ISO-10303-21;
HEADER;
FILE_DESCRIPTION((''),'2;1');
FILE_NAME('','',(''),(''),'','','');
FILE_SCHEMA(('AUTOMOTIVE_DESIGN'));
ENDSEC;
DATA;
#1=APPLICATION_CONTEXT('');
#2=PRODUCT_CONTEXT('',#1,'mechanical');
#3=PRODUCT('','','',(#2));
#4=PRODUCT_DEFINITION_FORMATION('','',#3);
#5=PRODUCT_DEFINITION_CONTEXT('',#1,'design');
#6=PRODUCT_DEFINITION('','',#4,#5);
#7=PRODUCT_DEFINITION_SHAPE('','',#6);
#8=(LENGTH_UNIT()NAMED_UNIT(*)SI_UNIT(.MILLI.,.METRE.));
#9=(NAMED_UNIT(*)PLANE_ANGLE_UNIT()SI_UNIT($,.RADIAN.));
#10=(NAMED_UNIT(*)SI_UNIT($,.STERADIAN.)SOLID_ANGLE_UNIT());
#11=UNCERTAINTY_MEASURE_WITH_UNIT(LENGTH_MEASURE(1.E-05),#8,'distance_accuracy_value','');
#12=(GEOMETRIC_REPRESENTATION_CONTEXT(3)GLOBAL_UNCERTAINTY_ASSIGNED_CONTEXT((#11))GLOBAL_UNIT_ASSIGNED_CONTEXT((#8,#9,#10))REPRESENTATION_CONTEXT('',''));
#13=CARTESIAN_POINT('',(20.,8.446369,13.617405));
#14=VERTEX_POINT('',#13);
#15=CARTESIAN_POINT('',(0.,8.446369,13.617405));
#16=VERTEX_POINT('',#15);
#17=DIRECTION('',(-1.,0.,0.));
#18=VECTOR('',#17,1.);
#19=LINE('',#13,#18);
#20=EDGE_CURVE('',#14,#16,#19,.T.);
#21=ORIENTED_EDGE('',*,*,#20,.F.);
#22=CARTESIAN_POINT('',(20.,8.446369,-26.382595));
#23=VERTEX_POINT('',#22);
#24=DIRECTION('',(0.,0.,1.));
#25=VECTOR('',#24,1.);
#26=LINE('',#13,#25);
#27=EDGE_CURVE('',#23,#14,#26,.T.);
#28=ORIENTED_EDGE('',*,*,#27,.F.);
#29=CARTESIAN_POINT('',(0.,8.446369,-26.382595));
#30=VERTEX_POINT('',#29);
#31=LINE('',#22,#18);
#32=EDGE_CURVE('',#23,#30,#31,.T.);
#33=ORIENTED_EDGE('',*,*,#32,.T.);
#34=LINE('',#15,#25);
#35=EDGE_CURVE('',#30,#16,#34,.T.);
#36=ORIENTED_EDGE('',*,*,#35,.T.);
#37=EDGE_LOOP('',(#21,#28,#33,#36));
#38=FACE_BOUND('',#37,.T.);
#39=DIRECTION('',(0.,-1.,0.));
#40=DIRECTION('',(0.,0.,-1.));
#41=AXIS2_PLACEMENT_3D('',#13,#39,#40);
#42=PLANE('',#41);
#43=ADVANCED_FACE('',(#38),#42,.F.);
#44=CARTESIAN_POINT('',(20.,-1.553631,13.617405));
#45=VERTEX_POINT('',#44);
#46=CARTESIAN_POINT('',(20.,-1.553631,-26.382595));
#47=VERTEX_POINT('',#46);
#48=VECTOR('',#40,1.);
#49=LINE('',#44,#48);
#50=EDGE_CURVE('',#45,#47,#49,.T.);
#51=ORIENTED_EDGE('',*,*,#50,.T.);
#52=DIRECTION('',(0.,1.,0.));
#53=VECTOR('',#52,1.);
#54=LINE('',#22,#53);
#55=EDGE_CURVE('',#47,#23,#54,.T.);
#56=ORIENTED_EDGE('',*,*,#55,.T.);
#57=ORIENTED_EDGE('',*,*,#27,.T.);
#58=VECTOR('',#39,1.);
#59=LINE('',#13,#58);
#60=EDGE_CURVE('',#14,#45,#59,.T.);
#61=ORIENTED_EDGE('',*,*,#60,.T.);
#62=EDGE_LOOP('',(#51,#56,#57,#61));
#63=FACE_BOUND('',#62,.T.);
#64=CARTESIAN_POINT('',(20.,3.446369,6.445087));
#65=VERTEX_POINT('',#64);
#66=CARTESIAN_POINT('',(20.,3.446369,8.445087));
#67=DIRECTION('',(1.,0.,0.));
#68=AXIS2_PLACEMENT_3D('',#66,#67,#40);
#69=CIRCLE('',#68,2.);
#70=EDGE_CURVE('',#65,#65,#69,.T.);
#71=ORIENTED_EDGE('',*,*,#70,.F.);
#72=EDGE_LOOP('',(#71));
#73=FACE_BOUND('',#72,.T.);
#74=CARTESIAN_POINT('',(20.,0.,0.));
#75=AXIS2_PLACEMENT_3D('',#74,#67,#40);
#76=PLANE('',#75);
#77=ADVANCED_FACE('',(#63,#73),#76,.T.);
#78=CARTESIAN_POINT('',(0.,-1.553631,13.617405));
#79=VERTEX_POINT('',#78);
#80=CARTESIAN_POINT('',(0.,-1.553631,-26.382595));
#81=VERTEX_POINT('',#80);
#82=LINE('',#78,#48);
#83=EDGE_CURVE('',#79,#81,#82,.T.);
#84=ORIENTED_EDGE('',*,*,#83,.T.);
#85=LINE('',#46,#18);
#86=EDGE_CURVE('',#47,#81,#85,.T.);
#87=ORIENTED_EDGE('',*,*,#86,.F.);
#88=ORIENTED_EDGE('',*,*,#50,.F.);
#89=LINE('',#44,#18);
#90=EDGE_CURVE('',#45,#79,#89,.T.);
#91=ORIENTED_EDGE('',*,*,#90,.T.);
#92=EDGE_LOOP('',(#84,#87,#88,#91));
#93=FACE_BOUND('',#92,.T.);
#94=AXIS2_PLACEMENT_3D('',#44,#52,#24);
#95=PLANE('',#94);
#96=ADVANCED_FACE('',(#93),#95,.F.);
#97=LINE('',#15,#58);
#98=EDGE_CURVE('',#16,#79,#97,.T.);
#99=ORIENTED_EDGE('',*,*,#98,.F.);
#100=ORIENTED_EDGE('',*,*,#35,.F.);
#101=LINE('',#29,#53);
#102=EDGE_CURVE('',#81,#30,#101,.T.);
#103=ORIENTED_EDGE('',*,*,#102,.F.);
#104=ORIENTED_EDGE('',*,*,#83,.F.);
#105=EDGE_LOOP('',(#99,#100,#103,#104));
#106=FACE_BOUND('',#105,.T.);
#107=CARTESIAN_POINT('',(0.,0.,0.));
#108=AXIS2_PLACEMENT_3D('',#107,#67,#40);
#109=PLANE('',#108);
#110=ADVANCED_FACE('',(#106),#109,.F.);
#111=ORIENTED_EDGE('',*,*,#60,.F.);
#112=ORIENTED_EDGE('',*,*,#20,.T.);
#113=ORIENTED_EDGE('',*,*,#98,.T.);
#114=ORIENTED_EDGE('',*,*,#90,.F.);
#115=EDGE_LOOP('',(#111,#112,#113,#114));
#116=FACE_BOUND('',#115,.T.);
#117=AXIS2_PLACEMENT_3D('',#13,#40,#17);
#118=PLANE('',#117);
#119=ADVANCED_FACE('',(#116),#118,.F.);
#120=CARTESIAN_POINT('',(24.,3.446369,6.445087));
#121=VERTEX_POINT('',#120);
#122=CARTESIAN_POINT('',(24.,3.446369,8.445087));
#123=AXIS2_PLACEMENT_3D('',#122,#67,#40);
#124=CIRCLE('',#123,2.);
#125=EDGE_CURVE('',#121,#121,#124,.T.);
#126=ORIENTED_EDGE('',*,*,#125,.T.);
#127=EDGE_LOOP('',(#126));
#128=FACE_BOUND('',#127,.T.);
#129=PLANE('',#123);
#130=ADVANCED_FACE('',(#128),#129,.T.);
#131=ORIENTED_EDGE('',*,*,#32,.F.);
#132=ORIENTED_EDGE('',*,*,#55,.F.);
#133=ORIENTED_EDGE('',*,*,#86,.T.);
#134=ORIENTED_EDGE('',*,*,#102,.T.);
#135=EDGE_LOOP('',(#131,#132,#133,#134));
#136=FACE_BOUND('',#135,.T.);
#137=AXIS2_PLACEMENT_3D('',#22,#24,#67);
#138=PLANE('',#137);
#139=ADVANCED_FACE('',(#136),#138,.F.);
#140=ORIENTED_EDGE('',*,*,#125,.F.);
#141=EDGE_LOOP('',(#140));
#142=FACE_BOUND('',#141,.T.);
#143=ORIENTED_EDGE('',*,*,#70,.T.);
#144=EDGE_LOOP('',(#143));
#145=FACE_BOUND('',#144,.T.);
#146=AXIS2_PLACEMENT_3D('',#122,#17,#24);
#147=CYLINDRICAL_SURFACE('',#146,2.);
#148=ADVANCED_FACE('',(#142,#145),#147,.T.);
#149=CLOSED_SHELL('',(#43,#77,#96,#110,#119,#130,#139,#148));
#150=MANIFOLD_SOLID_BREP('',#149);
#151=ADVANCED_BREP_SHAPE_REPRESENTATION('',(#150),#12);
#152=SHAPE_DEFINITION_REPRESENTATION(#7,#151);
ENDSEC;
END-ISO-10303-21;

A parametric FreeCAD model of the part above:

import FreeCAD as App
import Part
import Sketcher
Q = App.Units.Quantity


def add_polygon(sketch, points):
    """Adds a closed chain of lines whose ends are joined by coincident constraints."""
    first, n = sketch.GeometryCount, len(points)
    for a, b in zip(points, points[1:] + points[:1]):
        sketch.addGeometry(Part.LineSegment(App.Vector(*a, 0), App.Vector(*b, 0)), False)
    for i in range(n):
        sketch.addConstraint(Sketcher.Constraint("Coincident", first + i, 2, first + (i + 1) % n, 1))

doc = App.newDocument("Part")
body = doc.addObject("PartDesign::Body", "Body")

sketch1 = body.newObject("Sketcher::SketchObject", "Sketch")
sketch1.AttachmentSupport = (doc.getObject("YZ_Plane"), [""])
sketch1.MapMode = "FlatFace"
add_polygon(sketch1, [(8, 14), (-2, 14), (-2, -26), (8, -26)])
sketch1.addConstraint([
    Sketcher.Constraint("Horizontal", 0),
    Sketcher.Constraint("Vertical", 1),
    Sketcher.Constraint("Horizontal", 2),
    Sketcher.Constraint("Vertical", 3),
    Sketcher.Constraint("DistanceX", 0, 2, 0, 1, Q("10 mm")),
    Sketcher.Constraint("DistanceY", 1, 2, 1, 1, Q("40 mm")),
    Sketcher.Constraint("DistanceX", 0, 2, -1, 1, Q("1.553631 mm")),
    Sketcher.Constraint("DistanceY", -1, 1, 0, 2, Q("13.617405 mm")),
])
pad1 = body.newObject("PartDesign::Pad", "Pad")
pad1.Profile = sketch1
pad1.Length = 20

sketch2 = body.newObject("Sketcher::SketchObject", "Sketch001")
sketch2.AttachmentSupport = (doc.getObject("YZ_Plane"), [""])
sketch2.MapMode = "FlatFace"
sketch2.AttachmentOffset = App.Placement(App.Vector(0, 0, 20), App.Rotation())
sketch2.addGeometry(Part.Circle(App.Vector(3.4, 8.4, 0), App.Vector(0, 0, 1), 2), False)
sketch2.addConstraint([
    Sketcher.Constraint("Diameter", 0, Q("4 mm")),
    Sketcher.Constraint("DistanceX", -1, 1, 0, 3, Q("3.446369 mm")),
    Sketcher.Constraint("DistanceY", -1, 1, 0, 3, Q("8.445087 mm")),
])
pad2 = body.newObject("PartDesign::Pad", "Pad001")
pad2.Profile = sketch2
pad2.Length = 4

doc.recompute()
